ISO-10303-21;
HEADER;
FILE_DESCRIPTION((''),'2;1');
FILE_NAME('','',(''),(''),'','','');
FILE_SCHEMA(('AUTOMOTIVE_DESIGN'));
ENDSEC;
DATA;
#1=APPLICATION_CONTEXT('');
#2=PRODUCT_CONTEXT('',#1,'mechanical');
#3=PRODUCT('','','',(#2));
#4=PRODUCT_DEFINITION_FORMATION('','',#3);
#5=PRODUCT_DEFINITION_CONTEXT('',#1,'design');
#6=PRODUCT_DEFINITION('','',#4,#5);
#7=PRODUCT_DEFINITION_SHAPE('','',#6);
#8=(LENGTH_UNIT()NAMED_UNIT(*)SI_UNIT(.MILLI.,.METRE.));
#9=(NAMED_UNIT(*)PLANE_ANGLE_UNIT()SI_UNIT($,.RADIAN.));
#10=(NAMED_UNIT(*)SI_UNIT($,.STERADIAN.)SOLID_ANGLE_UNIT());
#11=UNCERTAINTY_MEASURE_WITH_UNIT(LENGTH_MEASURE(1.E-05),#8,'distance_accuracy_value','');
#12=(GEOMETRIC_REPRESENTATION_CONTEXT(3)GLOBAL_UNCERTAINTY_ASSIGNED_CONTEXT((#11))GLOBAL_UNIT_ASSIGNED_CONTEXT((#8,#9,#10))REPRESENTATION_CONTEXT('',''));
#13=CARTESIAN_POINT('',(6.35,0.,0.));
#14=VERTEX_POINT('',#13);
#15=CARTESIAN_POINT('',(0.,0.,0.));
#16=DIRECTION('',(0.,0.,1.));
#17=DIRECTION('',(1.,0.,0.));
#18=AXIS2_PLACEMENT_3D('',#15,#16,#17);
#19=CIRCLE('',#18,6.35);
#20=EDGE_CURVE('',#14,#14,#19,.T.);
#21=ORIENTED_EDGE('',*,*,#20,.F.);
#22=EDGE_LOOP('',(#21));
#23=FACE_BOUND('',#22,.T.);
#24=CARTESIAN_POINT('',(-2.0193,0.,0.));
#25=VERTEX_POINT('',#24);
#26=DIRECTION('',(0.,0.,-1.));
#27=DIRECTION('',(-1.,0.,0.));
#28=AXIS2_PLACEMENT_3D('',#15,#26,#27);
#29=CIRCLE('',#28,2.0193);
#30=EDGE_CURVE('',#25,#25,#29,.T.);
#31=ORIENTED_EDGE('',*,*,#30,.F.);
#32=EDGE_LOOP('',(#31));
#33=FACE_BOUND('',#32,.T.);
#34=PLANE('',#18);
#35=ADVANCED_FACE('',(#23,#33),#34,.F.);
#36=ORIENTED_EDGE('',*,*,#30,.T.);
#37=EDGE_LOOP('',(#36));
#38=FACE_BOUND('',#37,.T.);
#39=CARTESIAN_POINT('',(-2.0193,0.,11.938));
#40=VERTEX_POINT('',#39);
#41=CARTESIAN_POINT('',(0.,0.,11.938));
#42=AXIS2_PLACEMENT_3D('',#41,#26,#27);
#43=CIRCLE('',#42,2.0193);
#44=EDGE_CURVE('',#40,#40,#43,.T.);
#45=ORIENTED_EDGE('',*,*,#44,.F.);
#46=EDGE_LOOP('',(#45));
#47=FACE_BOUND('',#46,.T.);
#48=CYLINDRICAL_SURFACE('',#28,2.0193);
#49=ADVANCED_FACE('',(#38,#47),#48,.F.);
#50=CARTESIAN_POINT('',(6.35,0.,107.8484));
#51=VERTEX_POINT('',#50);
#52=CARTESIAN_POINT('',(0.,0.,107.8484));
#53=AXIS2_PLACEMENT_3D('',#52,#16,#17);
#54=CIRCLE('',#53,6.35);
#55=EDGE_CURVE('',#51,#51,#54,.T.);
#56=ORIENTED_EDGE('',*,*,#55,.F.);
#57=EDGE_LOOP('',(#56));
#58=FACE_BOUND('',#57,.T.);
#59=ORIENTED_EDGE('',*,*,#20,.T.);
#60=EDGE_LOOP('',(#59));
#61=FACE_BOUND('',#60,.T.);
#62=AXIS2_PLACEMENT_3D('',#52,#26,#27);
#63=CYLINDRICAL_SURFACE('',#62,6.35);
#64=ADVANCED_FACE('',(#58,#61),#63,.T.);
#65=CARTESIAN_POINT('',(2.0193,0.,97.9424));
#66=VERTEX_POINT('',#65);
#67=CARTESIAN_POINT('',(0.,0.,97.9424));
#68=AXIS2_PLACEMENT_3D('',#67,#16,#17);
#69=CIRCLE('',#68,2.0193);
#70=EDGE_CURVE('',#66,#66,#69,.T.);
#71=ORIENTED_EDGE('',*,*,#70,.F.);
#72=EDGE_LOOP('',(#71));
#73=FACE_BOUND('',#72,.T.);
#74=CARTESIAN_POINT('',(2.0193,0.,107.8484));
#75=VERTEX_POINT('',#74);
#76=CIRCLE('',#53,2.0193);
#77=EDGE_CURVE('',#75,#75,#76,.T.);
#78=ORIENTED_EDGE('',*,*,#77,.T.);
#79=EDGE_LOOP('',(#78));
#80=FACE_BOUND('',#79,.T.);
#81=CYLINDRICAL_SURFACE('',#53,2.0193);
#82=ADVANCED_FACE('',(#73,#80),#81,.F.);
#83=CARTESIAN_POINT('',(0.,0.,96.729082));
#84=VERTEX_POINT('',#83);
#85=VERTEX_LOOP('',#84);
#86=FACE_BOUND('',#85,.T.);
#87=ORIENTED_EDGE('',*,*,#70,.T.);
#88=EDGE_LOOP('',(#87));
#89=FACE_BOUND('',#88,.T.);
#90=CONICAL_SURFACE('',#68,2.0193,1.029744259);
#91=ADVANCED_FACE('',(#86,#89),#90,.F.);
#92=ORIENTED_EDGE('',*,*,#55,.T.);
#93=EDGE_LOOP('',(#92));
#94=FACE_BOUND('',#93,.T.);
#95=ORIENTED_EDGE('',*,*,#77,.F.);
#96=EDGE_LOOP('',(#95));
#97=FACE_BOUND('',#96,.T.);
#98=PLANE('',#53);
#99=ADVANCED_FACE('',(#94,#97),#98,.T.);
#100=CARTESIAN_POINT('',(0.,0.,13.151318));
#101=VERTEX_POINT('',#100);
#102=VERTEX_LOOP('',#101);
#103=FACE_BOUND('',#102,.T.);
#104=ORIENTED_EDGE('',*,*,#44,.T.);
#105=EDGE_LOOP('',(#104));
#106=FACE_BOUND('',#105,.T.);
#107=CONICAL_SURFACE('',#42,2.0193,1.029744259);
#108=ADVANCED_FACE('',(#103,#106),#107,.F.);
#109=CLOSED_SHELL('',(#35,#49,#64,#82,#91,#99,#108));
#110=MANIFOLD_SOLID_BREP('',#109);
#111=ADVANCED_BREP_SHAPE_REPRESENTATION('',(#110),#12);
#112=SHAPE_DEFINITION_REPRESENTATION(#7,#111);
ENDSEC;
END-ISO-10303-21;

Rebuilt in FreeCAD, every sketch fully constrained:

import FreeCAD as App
import Part
import Sketcher

V = App.Vector
Q = App.Units.Quantity

doc = App.newDocument("Part")
params = doc.addObject("Spreadsheet::Sheet", "Params")
for row, (alias, value) in enumerate([
    ("sketch1_diameter", "0.5 in"),
    ("pad1_length", "4.246 in"),
    ("sketch2_diameter", "0.159 in"),
    ("hole_diameter", "0.159 in"),
    ("hole_depth", "0.39 in"),
    ("sketch3_diameter", "0.159 in"),
    ("hole2_diameter", "0.159 in"),
    ("hole2_depth", "0.47 in"),
], start=1):
    params.set(f"A{row}", alias)
    params.set(f"B{row}", "=" + value)
    params.setAlias(f"B{row}", alias)

body = doc.addObject("PartDesign::Body", "Body")

# Sketch on XY plane
sketch1 = body.newObject("Sketcher::SketchObject", "Sketch")
sketch1.AttachmentSupport = (doc.getObject("XY_Plane"), [""])
sketch1.MapMode = "FlatFace"
sketch1.addGeometry(Part.Circle(V(0, 0, 0), V(0, 0, 1), 6.35), False)
sketch1.addConstraint(Sketcher.Constraint("Coincident", 0, 3, -1, 1))
sketch1.addConstraint(Sketcher.Constraint("Diameter", 0, Q("0.5 in")))
sketch1.setExpression("Constraints[1]", "Params.sketch1_diameter")
pad1 = body.newObject("PartDesign::Pad", "Pad")
pad1.Profile = sketch1
pad1.setExpression("Length", "Params.pad1_length")

# Sketch on XY plane
sketch2 = body.newObject("Sketcher::SketchObject", "Sketch001")
sketch2.AttachmentSupport = (doc.getObject("XY_Plane"), [""])
sketch2.MapMode = "FlatFace"
sketch2.AttachmentOffset = App.Placement(V(0, 0, 4.246 * 25.4), App.Rotation())
sketch2.addGeometry(Part.Circle(V(0, 0, 0), V(0, 0, 1), 2.0193), False)
sketch2.addConstraint(Sketcher.Constraint("Coincident", 0, 3, -1, 1))
sketch2.addConstraint(Sketcher.Constraint("Diameter", 0, Q("0.159 in")))
sketch2.setExpression("Constraints[1]", "Params.sketch2_diameter")
doc.recompute()
hole = body.newObject("PartDesign::Hole", "Hole")
hole.Profile = sketch2
hole.ThreadType = "None"
hole.setExpression("Diameter", "Params.hole_diameter")
hole.DepthType = "Dimension"
hole.setExpression("Depth", "Params.hole_depth")
hole.DrillPoint = "Angled"
hole.DrillPointAngle = 118

# Sketch on XY plane
sketch3 = body.newObject("Sketcher::SketchObject", "Sketch002")
sketch3.AttachmentSupport = (doc.getObject("XY_Plane"), [""])
sketch3.MapMode = "FlatFace"
sketch3.addGeometry(Part.Circle(V(0, 0, 0), V(0, 0, 1), 2.0193), False)
sketch3.addConstraint(Sketcher.Constraint("Coincident", 0, 3, -1, 1))
sketch3.addConstraint(Sketcher.Constraint("Diameter", 0, Q("0.159 in")))
sketch3.setExpression("Constraints[1]", "Params.sketch3_diameter")
doc.recompute()
hole2 = body.newObject("PartDesign::Hole", "Hole001")
hole2.Profile = sketch3
hole2.ThreadType = "None"
hole2.setExpression("Diameter", "Params.hole2_diameter")
hole2.DepthType = "Dimension"
hole2.setExpression("Depth", "Params.hole2_depth")
hole2.DrillPoint = "Angled"
hole2.DrillPointAngle = 118
hole2.Reversed = True

doc.recompute()
